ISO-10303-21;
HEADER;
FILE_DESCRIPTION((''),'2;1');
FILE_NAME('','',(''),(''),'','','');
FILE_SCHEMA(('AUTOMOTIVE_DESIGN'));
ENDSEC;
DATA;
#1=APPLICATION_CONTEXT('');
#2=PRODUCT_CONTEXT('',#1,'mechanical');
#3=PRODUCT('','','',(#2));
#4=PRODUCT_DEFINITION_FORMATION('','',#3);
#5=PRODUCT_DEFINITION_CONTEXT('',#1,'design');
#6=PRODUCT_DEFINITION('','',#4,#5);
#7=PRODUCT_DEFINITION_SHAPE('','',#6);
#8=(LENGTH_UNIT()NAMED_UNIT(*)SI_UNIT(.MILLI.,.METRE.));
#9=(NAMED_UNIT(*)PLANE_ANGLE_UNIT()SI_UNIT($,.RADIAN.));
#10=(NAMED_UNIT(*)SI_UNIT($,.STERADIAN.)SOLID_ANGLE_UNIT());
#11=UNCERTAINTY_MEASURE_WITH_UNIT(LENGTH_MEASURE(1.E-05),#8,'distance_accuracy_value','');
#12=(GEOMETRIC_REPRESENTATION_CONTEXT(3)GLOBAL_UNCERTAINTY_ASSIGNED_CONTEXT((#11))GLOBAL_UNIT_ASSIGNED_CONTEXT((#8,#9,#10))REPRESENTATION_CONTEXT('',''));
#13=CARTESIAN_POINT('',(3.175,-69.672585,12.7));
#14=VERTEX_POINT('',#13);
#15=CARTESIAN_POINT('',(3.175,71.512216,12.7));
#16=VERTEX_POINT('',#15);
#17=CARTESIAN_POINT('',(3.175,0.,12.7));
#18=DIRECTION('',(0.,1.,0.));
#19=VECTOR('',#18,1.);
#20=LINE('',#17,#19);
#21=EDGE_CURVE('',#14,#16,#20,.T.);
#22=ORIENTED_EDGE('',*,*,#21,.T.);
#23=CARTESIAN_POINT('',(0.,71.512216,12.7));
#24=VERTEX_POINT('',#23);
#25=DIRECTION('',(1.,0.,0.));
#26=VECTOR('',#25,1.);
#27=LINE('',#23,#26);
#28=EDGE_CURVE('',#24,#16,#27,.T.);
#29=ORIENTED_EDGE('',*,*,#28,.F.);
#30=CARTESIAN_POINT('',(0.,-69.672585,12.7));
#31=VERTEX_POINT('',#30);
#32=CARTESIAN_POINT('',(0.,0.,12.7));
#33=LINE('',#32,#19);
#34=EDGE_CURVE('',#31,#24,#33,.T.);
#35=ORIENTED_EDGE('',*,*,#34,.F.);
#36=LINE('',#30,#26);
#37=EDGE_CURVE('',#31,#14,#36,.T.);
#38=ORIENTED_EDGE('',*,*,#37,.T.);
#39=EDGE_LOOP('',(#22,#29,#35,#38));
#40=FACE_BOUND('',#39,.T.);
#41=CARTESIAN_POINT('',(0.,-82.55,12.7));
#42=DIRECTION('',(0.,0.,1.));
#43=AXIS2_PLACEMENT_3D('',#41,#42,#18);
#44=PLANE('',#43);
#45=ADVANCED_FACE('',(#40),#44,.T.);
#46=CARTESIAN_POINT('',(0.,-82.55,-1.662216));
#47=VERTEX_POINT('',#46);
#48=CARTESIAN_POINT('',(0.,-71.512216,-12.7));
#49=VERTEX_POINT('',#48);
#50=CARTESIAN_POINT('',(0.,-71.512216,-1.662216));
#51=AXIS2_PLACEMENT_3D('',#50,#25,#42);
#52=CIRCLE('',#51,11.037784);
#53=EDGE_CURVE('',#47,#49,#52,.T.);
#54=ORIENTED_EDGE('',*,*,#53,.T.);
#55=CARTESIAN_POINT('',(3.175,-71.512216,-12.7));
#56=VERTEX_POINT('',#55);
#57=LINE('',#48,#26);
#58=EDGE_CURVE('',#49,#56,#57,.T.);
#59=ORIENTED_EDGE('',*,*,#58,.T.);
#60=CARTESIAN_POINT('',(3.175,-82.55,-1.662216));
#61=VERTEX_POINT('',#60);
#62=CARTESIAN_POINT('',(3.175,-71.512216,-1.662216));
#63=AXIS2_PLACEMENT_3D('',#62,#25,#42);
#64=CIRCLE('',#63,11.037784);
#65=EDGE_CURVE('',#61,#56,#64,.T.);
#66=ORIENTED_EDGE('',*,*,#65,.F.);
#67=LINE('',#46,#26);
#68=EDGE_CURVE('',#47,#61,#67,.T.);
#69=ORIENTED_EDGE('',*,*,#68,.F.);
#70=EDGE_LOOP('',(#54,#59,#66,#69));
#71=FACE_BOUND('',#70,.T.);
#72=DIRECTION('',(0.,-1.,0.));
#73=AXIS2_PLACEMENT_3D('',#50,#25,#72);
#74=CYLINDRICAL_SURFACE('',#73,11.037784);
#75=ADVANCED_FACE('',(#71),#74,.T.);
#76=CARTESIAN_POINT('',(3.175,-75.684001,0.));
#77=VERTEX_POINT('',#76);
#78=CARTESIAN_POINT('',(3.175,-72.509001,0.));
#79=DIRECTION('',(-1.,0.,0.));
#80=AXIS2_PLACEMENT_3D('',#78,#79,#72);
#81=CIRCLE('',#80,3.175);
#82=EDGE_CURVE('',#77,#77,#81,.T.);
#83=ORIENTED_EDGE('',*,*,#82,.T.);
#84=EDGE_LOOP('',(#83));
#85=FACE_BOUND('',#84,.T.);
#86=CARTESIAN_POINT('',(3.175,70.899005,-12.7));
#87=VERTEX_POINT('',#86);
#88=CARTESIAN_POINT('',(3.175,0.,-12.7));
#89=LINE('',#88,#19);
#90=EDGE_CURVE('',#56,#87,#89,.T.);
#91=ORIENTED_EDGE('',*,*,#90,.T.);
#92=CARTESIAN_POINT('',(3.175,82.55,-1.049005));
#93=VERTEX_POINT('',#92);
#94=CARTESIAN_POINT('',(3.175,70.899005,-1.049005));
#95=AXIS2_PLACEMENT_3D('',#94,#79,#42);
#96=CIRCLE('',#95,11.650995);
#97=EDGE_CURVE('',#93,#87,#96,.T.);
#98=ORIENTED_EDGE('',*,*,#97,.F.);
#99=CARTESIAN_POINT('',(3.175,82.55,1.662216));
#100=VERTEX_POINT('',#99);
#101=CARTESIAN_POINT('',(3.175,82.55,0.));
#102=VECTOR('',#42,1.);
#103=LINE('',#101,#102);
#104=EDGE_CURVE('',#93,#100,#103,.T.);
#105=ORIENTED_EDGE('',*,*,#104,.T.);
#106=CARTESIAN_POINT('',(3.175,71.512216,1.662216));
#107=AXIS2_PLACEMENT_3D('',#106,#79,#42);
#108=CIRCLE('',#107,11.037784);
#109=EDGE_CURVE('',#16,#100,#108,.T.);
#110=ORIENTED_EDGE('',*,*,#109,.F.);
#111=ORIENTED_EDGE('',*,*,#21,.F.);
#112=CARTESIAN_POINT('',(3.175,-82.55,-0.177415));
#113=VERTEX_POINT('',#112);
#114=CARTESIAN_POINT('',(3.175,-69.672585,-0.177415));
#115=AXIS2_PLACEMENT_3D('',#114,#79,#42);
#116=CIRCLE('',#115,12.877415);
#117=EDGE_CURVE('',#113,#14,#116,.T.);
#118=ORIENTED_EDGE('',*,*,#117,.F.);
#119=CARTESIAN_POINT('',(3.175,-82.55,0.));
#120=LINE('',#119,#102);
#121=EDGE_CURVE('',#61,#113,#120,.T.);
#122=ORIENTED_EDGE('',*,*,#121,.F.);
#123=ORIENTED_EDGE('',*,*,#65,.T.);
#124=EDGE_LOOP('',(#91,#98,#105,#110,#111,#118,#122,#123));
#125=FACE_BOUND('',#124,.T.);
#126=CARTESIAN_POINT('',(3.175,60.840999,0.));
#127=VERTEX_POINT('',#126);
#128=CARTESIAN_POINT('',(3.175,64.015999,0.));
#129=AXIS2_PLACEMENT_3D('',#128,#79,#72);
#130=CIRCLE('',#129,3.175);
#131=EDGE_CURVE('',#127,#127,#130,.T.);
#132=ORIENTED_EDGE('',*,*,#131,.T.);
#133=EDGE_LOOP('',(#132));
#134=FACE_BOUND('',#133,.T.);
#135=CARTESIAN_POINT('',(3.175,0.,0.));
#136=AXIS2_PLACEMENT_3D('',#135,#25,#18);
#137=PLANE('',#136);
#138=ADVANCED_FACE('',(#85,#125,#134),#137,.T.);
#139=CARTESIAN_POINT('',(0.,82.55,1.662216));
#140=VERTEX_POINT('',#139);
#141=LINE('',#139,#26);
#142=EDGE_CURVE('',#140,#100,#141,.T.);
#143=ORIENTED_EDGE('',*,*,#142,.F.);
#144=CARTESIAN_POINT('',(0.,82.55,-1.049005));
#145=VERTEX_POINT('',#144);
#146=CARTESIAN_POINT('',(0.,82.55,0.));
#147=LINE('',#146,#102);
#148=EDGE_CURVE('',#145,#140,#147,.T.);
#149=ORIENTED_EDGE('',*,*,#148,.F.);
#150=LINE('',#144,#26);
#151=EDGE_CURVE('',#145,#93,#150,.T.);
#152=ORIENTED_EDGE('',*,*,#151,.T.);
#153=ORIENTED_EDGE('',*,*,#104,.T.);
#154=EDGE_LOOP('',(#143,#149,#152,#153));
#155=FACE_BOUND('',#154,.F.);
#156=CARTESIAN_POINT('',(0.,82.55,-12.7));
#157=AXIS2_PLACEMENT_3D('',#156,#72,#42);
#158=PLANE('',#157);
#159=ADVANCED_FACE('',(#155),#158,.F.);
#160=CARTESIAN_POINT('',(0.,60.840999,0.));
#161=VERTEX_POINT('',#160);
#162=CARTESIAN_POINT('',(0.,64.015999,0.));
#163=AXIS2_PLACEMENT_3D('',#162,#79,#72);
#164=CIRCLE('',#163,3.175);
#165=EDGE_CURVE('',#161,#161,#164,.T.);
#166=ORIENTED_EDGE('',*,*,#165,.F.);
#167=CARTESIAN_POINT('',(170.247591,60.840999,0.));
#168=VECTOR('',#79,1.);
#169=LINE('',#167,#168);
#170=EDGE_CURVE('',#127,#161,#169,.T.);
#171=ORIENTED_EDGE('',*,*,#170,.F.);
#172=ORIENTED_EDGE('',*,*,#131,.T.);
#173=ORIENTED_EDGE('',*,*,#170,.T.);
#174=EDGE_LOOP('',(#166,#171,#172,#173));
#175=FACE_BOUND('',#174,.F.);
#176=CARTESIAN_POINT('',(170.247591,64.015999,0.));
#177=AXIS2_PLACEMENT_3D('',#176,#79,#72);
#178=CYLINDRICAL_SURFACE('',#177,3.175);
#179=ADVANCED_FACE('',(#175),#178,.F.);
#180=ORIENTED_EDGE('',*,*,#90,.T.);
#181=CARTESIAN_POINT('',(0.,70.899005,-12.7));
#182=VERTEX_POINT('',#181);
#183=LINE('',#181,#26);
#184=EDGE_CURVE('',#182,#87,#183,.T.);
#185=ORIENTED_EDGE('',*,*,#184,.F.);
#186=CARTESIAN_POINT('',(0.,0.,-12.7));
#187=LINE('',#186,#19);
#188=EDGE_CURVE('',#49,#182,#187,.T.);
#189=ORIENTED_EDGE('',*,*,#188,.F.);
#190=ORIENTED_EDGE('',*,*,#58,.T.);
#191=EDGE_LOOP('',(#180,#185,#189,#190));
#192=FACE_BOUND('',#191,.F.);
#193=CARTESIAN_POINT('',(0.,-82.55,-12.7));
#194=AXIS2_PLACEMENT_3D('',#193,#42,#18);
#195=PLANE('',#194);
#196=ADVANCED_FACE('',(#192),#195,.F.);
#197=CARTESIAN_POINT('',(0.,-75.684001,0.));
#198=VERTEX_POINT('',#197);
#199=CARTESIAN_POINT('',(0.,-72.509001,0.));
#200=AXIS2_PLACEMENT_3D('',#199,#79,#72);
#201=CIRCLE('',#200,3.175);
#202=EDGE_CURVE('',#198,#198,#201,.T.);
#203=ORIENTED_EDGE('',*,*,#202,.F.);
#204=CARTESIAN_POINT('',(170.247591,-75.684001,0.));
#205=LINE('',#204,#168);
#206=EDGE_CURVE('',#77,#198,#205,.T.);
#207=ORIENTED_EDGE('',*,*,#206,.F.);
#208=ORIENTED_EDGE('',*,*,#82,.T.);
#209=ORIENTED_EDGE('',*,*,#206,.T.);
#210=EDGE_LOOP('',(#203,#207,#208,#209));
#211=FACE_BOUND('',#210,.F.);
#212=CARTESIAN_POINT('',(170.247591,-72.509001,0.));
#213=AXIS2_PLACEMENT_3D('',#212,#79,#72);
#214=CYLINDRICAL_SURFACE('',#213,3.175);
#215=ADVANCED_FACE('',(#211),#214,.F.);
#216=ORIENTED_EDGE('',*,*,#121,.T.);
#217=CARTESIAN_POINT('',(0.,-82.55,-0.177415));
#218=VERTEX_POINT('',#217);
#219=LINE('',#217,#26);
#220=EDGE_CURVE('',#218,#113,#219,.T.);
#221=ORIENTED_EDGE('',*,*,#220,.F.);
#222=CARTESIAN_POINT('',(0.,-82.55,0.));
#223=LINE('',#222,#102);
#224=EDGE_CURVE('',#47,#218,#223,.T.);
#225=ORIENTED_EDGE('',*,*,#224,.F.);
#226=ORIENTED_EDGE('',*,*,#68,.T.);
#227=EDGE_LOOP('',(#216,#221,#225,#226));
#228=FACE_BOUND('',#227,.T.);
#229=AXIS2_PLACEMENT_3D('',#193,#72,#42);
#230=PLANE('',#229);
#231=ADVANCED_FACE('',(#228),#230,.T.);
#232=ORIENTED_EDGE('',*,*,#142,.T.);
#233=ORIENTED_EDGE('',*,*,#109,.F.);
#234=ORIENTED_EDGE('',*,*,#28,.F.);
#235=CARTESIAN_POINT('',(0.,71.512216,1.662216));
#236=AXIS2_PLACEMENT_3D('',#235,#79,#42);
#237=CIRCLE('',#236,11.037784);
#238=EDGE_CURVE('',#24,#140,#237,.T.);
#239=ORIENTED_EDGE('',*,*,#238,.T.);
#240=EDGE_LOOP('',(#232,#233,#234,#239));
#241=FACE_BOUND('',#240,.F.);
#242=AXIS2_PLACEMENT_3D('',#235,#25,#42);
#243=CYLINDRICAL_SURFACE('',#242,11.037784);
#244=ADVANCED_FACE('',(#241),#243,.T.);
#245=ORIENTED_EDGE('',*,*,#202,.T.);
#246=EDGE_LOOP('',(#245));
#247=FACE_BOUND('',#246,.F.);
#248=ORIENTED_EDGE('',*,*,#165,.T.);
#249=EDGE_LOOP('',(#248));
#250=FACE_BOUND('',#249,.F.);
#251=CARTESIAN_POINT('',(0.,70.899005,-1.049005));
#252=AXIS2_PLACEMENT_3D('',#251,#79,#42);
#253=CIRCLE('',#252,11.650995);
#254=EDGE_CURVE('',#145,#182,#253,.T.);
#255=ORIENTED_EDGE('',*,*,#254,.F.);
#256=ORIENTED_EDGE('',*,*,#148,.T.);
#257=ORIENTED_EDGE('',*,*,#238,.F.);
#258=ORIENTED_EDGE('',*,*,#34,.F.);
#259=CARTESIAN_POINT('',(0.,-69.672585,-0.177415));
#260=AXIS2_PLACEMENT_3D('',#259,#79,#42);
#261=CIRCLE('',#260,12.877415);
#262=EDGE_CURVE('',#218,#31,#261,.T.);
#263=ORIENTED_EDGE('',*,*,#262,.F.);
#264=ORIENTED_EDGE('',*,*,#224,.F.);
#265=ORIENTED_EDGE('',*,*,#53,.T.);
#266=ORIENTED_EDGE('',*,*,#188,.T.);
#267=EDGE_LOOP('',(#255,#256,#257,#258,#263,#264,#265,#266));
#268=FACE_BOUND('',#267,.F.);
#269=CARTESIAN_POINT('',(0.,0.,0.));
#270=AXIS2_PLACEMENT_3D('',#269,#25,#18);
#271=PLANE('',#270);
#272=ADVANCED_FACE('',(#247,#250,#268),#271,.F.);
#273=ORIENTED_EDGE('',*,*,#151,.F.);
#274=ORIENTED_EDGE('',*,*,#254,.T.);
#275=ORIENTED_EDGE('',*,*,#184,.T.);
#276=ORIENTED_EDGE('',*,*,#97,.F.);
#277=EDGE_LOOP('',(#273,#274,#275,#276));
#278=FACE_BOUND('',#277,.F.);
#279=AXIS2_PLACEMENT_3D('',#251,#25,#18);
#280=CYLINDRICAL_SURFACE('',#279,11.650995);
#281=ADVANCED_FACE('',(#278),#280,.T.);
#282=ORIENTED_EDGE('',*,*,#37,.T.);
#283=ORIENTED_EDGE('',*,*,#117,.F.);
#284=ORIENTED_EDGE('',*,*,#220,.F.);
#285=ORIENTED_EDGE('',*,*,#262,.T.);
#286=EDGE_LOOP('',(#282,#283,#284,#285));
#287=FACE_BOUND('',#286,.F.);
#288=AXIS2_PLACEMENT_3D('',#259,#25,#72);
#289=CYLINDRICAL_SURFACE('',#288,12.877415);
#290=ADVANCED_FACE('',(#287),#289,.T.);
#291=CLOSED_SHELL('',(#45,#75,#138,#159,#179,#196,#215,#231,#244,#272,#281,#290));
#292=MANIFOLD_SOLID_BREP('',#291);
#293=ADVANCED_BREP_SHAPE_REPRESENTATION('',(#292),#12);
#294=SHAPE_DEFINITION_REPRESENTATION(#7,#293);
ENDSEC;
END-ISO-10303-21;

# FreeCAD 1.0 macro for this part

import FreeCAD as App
import Part
import Sketcher
Q = App.Units.Quantity


def edges_at(feature, points):
    """Names of the edges that pass closest to the given points."""
    edges = feature.Shape.Edges
    near = lambda p: min(range(len(edges)), key=lambda i: edges[i].distToShape(Part.Vertex(*p))[0])
    return sorted({f"Edge{near(p) + 1}" for p in points})

doc = App.newDocument("Part")
body = doc.addObject("PartDesign::Body", "Body")

# Sketch on YZ plane
sketch1 = body.newObject("Sketcher::SketchObject", "Sketch")
sketch1.AttachmentSupport = (doc.getObject("YZ_Plane"), [""])
sketch1.MapMode = "FlatFace"
sketch1.addGeometry(Part.LineSegment(App.Vector(-83, 13, 0), App.Vector(-83, -13, 0)), False)
sketch1.addGeometry(Part.LineSegment(App.Vector(-83, -13, 0), App.Vector(83, -13, 0)), False)
sketch1.addGeometry(Part.LineSegment(App.Vector(83, -13, 0), App.Vector(83, 13, 0)), False)
sketch1.addGeometry(Part.LineSegment(App.Vector(83, 13, 0), App.Vector(-83, 13, 0)), False)
sketch1.addConstraint(Sketcher.Constraint("Coincident", 0, 2, 1, 1))
sketch1.addConstraint(Sketcher.Constraint("Coincident", 1, 2, 2, 1))
sketch1.addConstraint(Sketcher.Constraint("Coincident", 2, 2, 3, 1))
sketch1.addConstraint(Sketcher.Constraint("Coincident", 3, 2, 0, 1))
sketch1.addConstraint(Sketcher.Constraint("Vertical", 0))
sketch1.addConstraint(Sketcher.Constraint("Horizontal", 1))
sketch1.addConstraint(Sketcher.Constraint("Vertical", 2))
sketch1.addConstraint(Sketcher.Constraint("Horizontal", 3))
sketch1.addConstraint(Sketcher.Constraint("Symmetric", 0, 2, 2, 2, -1, 1))
sketch1.addConstraint(Sketcher.Constraint("DistanceY", 0, 2, 0, 1, Q("1 in")))
sketch1.addConstraint(Sketcher.Constraint("DistanceX", 1, 1, 1, 2, Q("6.5 in")))
pad1 = body.newObject("PartDesign::Pad", "Pad")
pad1.Profile = sketch1
pad1.Length = Q("0.125 in")
doc.recompute()

fillet = body.newObject("PartDesign::Fillet", "Fillet")
fillet.Base = (pad1, edges_at(pad1, [(1.587, -82.55, 12.7)]))
fillet.Radius = 12.877415
doc.recompute()

fillet2 = body.newObject("PartDesign::Fillet", "Fillet001")
fillet2.Base = (fillet, edges_at(fillet, [(1.587, -82.55, -12.7)]))
fillet2.Radius = 11.037784
doc.recompute()

fillet3 = body.newObject("PartDesign::Fillet", "Fillet002")
fillet3.Base = (fillet2, edges_at(fillet2, [(1.587, 82.55, 12.7)]))
fillet3.Radius = 11.037784
doc.recompute()

fillet4 = body.newObject("PartDesign::Fillet", "Fillet003")
fillet4.Base = (fillet3, edges_at(fillet3, [(1.587, 82.55, -12.7)]))
fillet4.Radius = 11.650995

# Sketch on YZ plane
sketch2 = body.newObject("Sketcher::SketchObject", "Sketch001")
sketch2.AttachmentSupport = (doc.getObject("YZ_Plane"), [""])
sketch2.MapMode = "FlatFace"
sketch2.AttachmentOffset = App.Placement(App.Vector(0, 0, 0.125 * 25.4), App.Rotation())
sketch2.addGeometry(Part.Circle(App.Vector(-72.5, 0, 0), App.Vector(0, 0, 1), 3.2), False)
sketch2.addGeometry(Part.Circle(App.Vector(64, 0, 0), App.Vector(0, 0, 1), 3.2), False)
sketch2.addConstraint(Sketcher.Constraint("Equal", 0, 1))
sketch2.addConstraint(Sketcher.Constraint("PointOnObject", 0, 3, -1))
sketch2.addConstraint(Sketcher.Constraint("PointOnObject", 1, 3, -1))
sketch2.addConstraint(Sketcher.Constraint("Diameter", 0, Q("0.25 in")))
sketch2.addConstraint(Sketcher.Constraint("DistanceX", 0, 3, 1, 3, Q("5.375 in")))
sketch2.addConstraint(Sketcher.Constraint("DistanceX", 0, 3, -1, 1, Q("72.509001 mm")))
doc.recompute()
hole = body.newObject("PartDesign::Hole", "Hole")
hole.Profile = sketch2
hole.ThreadType = "None"
hole.Diameter = Q("0.25 in")
hole.DepthType = "ThroughAll"

doc.recompute()
